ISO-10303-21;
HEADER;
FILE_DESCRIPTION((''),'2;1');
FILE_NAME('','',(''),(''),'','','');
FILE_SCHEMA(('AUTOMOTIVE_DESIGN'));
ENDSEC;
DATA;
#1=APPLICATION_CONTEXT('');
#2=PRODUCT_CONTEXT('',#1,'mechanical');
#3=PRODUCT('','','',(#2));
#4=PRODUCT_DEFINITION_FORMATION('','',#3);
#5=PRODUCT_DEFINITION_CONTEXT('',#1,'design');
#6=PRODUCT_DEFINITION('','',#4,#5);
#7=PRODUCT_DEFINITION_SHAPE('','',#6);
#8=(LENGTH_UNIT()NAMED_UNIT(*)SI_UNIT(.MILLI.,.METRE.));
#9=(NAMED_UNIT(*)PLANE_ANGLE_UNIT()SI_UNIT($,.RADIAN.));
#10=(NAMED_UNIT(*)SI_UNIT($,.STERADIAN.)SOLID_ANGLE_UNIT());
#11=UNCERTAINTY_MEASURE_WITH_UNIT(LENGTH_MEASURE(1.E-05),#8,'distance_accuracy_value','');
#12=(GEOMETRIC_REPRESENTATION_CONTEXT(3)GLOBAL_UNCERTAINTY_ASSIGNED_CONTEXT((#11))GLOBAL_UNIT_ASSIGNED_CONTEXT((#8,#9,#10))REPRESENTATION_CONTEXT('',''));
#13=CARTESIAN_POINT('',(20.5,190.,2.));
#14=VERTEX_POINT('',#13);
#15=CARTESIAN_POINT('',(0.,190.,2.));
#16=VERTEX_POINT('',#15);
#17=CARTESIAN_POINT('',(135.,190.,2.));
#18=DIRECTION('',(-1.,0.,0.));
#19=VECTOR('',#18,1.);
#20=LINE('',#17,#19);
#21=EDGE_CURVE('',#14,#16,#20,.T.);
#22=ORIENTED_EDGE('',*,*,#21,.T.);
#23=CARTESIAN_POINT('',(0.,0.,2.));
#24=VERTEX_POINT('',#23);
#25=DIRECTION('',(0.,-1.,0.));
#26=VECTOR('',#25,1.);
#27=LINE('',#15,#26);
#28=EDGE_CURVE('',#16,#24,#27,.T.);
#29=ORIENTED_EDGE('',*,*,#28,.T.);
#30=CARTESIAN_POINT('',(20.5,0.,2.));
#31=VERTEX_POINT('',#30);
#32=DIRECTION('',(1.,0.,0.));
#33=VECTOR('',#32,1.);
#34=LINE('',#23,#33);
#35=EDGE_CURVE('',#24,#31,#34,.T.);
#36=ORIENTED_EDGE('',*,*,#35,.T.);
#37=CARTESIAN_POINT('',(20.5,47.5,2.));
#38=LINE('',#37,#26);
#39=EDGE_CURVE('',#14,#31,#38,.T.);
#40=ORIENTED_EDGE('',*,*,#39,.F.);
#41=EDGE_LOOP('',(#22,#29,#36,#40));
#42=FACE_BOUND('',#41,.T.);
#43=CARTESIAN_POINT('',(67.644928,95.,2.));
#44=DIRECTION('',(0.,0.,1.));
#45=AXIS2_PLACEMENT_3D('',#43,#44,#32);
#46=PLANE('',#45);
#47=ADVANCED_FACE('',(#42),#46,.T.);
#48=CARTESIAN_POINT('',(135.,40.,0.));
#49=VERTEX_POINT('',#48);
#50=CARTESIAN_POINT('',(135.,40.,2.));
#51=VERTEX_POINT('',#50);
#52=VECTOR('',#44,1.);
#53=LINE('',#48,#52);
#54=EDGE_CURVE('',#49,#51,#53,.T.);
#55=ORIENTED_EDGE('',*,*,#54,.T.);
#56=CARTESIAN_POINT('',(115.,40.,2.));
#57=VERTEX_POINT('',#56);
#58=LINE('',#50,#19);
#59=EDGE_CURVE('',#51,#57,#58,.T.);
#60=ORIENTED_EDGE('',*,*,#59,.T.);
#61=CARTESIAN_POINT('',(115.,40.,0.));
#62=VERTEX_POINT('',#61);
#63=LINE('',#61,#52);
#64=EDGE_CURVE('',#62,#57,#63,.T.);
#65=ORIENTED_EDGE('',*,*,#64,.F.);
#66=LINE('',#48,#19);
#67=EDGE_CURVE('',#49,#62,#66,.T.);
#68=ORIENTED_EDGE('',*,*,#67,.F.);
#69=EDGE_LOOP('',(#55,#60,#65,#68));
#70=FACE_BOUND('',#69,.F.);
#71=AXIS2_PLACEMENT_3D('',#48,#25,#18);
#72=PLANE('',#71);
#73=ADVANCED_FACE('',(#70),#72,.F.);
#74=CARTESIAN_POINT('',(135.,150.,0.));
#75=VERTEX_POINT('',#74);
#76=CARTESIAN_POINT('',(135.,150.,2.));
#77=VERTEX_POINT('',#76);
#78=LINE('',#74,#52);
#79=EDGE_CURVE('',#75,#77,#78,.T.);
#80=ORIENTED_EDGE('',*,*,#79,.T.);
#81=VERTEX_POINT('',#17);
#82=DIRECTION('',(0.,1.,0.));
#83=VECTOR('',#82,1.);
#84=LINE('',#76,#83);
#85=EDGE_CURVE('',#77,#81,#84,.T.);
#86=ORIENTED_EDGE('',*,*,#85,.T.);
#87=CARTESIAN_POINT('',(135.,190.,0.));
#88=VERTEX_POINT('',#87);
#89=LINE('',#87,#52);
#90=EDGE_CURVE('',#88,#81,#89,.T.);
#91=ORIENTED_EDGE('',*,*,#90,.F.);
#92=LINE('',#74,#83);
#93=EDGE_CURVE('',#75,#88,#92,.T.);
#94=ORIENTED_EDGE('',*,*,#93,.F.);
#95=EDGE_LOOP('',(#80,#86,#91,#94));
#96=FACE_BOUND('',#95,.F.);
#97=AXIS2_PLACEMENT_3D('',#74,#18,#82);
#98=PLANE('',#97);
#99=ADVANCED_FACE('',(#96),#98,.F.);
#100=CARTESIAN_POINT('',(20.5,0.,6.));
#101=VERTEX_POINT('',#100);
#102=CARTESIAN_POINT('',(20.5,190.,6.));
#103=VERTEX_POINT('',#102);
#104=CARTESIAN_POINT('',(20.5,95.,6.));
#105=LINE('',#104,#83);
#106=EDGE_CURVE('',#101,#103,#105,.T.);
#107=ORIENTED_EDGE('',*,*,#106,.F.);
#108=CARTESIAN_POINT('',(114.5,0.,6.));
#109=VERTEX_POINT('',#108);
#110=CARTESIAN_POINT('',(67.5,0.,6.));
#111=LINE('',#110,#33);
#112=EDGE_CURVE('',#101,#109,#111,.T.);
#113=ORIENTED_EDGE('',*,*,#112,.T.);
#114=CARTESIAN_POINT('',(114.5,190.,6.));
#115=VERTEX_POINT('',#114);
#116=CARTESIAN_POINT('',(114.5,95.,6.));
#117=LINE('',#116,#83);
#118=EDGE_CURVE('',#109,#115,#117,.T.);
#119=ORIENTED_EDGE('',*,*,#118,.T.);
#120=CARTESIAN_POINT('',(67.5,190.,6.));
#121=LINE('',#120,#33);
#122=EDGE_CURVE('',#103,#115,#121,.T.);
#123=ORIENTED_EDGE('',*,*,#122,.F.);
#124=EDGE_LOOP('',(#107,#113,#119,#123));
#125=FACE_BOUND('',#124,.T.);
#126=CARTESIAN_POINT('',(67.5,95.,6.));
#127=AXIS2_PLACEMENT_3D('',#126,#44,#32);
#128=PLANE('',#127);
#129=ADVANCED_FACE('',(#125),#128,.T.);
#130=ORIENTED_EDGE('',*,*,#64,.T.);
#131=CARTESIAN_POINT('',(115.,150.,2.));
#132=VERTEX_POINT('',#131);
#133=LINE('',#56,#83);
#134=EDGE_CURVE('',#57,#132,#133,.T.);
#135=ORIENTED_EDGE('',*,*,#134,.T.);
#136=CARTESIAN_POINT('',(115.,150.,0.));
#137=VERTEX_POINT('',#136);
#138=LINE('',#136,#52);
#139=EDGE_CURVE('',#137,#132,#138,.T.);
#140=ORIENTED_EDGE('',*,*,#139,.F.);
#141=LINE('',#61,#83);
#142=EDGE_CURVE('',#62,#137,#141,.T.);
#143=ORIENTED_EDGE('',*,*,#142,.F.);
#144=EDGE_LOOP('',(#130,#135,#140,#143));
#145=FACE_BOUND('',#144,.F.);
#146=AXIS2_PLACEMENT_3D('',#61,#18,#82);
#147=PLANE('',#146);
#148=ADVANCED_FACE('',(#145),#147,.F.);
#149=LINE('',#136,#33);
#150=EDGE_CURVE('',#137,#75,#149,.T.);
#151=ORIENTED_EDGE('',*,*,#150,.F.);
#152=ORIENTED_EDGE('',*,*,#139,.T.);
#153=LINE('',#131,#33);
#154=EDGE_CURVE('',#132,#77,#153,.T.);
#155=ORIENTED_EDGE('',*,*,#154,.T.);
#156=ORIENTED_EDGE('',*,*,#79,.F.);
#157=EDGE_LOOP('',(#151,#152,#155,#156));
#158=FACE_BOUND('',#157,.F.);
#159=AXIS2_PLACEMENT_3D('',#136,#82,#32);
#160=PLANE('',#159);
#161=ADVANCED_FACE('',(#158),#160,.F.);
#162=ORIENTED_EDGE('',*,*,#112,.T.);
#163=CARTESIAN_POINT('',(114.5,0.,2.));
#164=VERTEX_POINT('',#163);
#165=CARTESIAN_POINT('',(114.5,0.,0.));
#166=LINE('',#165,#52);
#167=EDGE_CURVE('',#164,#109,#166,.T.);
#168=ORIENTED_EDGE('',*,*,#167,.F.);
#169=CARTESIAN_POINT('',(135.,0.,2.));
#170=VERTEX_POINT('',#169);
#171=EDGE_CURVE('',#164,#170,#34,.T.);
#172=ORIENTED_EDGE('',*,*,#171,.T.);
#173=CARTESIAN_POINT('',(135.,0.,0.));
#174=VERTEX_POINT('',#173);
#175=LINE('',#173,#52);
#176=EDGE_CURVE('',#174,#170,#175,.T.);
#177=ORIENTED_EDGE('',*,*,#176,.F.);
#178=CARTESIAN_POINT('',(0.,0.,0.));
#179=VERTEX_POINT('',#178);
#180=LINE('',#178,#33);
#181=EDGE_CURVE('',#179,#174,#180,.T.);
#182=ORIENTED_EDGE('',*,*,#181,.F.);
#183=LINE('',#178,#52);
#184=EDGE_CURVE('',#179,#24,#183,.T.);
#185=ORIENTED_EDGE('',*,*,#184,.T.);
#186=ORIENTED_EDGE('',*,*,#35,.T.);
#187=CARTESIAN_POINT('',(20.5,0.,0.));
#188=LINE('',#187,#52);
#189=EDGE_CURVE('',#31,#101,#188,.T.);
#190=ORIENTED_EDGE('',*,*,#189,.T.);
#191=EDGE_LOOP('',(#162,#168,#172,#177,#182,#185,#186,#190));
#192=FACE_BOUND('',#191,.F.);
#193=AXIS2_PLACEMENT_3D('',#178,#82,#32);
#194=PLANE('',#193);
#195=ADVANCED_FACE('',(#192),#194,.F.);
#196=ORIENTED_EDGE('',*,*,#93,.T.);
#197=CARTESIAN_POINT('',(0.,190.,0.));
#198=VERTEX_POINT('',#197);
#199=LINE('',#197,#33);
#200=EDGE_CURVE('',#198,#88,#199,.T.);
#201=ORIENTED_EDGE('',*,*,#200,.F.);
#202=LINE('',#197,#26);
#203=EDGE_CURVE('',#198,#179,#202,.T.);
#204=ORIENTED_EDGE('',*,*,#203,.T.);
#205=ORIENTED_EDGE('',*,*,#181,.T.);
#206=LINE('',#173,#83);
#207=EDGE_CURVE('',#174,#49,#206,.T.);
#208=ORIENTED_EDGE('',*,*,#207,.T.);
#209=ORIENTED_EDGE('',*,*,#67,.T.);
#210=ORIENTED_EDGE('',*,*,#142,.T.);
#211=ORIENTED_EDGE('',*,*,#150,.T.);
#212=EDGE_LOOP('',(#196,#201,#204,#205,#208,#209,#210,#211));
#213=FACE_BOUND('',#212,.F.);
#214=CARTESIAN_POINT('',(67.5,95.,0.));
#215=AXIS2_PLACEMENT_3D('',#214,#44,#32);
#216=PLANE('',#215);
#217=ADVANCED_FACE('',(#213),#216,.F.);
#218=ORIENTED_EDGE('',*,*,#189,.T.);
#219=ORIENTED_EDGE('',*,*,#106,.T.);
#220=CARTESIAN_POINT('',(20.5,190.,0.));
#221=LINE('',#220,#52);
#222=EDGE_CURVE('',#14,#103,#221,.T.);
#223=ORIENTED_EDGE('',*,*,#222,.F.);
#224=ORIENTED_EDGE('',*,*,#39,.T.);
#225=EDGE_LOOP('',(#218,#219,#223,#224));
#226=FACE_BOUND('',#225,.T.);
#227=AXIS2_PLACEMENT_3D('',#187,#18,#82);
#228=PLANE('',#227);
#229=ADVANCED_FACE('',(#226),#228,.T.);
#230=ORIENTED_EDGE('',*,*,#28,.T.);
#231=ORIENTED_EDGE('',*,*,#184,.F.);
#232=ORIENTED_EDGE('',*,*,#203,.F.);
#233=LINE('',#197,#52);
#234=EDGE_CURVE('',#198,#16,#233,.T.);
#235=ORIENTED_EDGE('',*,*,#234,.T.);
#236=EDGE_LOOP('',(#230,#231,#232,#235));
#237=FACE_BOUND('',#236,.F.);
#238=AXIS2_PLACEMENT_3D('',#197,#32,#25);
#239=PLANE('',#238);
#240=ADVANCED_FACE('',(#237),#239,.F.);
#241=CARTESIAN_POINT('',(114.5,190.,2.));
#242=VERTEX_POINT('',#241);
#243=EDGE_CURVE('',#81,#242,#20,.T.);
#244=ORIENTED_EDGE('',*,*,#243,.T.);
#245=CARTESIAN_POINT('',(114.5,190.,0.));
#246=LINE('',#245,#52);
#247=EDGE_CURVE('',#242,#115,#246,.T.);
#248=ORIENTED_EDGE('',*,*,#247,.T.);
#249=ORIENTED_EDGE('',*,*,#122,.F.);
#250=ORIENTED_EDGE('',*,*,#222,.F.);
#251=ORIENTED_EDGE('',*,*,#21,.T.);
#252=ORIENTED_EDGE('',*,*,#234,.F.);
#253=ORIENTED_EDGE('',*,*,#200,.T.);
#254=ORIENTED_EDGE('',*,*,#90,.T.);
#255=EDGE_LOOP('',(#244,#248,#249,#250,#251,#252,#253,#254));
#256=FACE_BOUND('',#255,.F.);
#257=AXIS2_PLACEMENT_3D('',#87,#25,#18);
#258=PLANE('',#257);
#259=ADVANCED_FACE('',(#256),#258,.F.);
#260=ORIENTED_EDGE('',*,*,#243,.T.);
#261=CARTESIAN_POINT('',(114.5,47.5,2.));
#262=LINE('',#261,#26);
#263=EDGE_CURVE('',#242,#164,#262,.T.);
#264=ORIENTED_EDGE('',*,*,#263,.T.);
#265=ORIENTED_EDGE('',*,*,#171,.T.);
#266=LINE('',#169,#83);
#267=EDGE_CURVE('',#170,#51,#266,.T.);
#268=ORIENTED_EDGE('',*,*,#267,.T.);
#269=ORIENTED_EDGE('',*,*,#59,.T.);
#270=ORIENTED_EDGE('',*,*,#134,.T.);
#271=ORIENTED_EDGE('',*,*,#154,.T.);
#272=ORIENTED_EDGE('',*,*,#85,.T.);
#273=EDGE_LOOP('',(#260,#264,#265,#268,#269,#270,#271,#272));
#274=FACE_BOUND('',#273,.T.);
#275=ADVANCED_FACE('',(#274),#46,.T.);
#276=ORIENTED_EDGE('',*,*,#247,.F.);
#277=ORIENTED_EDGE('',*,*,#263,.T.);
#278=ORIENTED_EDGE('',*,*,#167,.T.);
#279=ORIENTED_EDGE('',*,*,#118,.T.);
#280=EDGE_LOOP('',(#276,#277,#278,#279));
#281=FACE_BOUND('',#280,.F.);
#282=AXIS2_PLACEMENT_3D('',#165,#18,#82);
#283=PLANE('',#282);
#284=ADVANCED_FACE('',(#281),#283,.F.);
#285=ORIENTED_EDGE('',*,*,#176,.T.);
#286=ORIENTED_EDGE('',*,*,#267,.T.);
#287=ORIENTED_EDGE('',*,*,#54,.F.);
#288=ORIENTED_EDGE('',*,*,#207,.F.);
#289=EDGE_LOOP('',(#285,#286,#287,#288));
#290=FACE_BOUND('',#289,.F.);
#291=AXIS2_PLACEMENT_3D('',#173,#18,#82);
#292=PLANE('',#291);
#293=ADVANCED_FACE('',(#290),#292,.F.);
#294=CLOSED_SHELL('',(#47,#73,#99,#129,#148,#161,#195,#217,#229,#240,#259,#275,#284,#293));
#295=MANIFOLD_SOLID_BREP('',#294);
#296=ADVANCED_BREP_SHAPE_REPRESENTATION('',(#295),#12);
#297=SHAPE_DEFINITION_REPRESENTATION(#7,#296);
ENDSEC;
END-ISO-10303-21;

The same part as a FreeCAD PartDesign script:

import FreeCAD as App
import Part
import Sketcher
Q = App.Units.Quantity

doc = App.newDocument("Part")
params = doc.addObject("Spreadsheet::Sheet", "Params")
for row, (alias, value) in enumerate([
    ("sketch1_width", "135 mm"),
    ("sketch1_width2", "20 mm"),
    ("sketch1_height", "40 mm"),
    ("sketch1_height2", "110 mm"),
    ("pad1_length", "2 mm"),
    ("sketch2_width", "94 mm"),
    ("sketch2_height", "190 mm"),
    ("pad2_length", "6 mm"),
], start=1):
    params.set(f"A{row}", alias)
    params.set(f"B{row}", "=" + value)
    params.setAlias(f"B{row}", alias)

body = doc.addObject("PartDesign::Body", "Body")

# Sketch on XY plane
sketch1 = doc.addObject("Sketcher::SketchObject", "Sketch")
body.addObject(sketch1)
sketch1.AttachmentSupport = (doc.XY_Plane, [""])
sketch1.MapMode = "FlatFace"
sketch1.addGeometry([
    Part.LineSegment(App.Vector(0, 0, 0), App.Vector(135, 0, 0)),  # 0
    Part.LineSegment(App.Vector(135, 0, 0), App.Vector(135, 40, 0)),  # 1
    Part.LineSegment(App.Vector(135, 40, 0), App.Vector(115, 40, 0)),  # 2
    Part.LineSegment(App.Vector(115, 40, 0), App.Vector(115, 150, 0)),  # 3
    Part.LineSegment(App.Vector(115, 150, 0), App.Vector(135, 150, 0)),  # 4
    Part.LineSegment(App.Vector(135, 150, 0), App.Vector(135, 190, 0)),  # 5
    Part.LineSegment(App.Vector(135, 190, 0), App.Vector(0, 190, 0)),  # 6
    Part.LineSegment(App.Vector(0, 190, 0), App.Vector(0, 0, 0)),  # 7
], False)
sketch1.addConstraint([
    Sketcher.Constraint("Coincident", 0, 2, 1, 1),
    Sketcher.Constraint("Coincident", 1, 2, 2, 1),
    Sketcher.Constraint("Coincident", 2, 2, 3, 1),
    Sketcher.Constraint("Coincident", 3, 2, 4, 1),
    Sketcher.Constraint("Coincident", 4, 2, 5, 1),
    Sketcher.Constraint("Coincident", 5, 2, 6, 1),
    Sketcher.Constraint("Coincident", 6, 2, 7, 1),
    Sketcher.Constraint("Coincident", 7, 2, 0, 1),
    Sketcher.Constraint("Horizontal", 0),
    Sketcher.Constraint("Vertical", 1),
    Sketcher.Constraint("Horizontal", 2),
    Sketcher.Constraint("Vertical", 3),
    Sketcher.Constraint("Horizontal", 4),
    Sketcher.Constraint("Vertical", 5),
    Sketcher.Constraint("Horizontal", 6),
    Sketcher.Constraint("Vertical", 7),
    Sketcher.Constraint("Coincident", 7, 2, -1, 1),
    Sketcher.Constraint("Vertical", 1, 2, 4, 2),
    Sketcher.Constraint("Equal", 1, 5),
    Sketcher.Constraint("DistanceX", 0, 1, 0, 2, Q("135 mm")),
    Sketcher.Constraint("DistanceX", 2, 2, 2, 1, Q("20 mm")),
    Sketcher.Constraint("DistanceY", 1, 1, 1, 2, Q("40 mm")),
    Sketcher.Constraint("DistanceY", 3, 1, 3, 2, Q("110 mm")),
])
sketch1.setExpression("Constraints[19]", "Params.sketch1_width")
sketch1.setExpression("Constraints[20]", "Params.sketch1_width2")
sketch1.setExpression("Constraints[21]", "Params.sketch1_height")
sketch1.setExpression("Constraints[22]", "Params.sketch1_height2")
pad1 = doc.addObject("PartDesign::Pad", "Pad")
body.addObject(pad1)
pad1.Profile = sketch1
pad1.setExpression("Length", "Params.pad1_length")

# Sketch on XY plane
sketch2 = doc.addObject("Sketcher::SketchObject", "Sketch001")
body.addObject(sketch2)
sketch2.AttachmentSupport = (doc.XY_Plane, [""])
sketch2.MapMode = "FlatFace"
sketch2.addGeometry([
    Part.LineSegment(App.Vector(20, 190, 0), App.Vector(20, 0, 0)),
    Part.LineSegment(App.Vector(20, 0, 0), App.Vector(114, 0, 0)),
    Part.LineSegment(App.Vector(114, 0, 0), App.Vector(114, 190, 0)),
    Part.LineSegment(App.Vector(114, 190, 0), App.Vector(20, 190, 0)),
], False)
sketch2.addConstraint([
    Sketcher.Constraint("Coincident", 0, 2, 1, 1),
    Sketcher.Constraint("Coincident", 1, 2, 2, 1),
    Sketcher.Constraint("Coincident", 2, 2, 3, 1),
    Sketcher.Constraint("Coincident", 3, 2, 0, 1),
    Sketcher.Constraint("Vertical", 0),
    Sketcher.Constraint("Horizontal", 1),
    Sketcher.Constraint("Vertical", 2),
    Sketcher.Constraint("Horizontal", 3),
    Sketcher.Constraint("PointOnObject", 0, 2, -1),
    Sketcher.Constraint("DistanceX", 1, 1, 1, 2, Q("94 mm")),
    Sketcher.Constraint("DistanceY", 0, 2, 0, 1, Q("190 mm")),
    Sketcher.Constraint("DistanceX", -1, 1, 0, 2, Q("20.5 mm")),
])
sketch2.setExpression("Constraints[9]", "Params.sketch2_width")
sketch2.setExpression("Constraints[10]", "Params.sketch2_height")
pad2 = doc.addObject("PartDesign::Pad", "Pad001")
body.addObject(pad2)
pad2.Profile = sketch2
pad2.setExpression("Length", "Params.pad2_length")

doc.recompute()
